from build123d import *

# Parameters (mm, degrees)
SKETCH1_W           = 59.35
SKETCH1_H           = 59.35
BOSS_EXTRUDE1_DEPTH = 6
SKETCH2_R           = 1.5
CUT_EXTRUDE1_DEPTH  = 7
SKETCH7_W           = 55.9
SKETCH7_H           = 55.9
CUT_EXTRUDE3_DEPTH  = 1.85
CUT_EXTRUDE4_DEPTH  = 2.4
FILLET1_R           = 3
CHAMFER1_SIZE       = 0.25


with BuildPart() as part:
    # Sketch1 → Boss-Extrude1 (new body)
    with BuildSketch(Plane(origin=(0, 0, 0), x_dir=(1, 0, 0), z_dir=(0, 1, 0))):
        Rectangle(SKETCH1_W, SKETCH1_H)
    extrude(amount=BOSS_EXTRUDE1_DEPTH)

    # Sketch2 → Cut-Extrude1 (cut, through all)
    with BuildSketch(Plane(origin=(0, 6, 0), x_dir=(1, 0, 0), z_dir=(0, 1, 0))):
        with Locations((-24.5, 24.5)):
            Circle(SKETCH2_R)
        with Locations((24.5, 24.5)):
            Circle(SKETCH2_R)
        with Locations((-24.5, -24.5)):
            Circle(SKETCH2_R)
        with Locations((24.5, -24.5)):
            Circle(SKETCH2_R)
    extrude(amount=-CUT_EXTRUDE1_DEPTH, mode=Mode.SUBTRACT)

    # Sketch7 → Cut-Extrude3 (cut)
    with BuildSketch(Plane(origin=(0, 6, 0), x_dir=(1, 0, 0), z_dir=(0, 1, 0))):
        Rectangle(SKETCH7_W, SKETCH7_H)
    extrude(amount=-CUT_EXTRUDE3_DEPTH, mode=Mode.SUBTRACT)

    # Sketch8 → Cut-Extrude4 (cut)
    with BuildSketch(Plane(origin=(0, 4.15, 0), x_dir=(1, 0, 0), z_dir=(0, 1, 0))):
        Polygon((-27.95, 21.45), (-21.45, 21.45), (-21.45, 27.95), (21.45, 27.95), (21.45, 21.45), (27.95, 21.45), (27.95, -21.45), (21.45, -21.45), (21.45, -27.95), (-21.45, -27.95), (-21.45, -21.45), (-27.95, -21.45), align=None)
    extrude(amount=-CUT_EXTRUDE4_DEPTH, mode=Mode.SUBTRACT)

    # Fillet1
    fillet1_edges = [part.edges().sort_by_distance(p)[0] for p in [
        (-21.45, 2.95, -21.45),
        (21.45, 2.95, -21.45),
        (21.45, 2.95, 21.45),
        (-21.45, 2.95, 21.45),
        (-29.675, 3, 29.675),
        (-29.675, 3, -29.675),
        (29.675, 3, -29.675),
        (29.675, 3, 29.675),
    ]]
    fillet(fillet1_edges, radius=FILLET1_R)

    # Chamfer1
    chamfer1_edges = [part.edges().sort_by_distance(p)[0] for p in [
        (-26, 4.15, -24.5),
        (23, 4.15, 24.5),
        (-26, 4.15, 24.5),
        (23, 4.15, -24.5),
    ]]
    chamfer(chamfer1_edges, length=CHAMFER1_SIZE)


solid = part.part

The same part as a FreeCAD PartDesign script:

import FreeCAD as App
import Part
import Sketcher
Q = App.Units.Quantity


def edges_at(feature, points):
    """Names of the edges that pass closest to the given points."""
    edges = feature.Shape.Edges
    near = lambda p: min(range(len(edges)), key=lambda i: edges[i].distToShape(Part.Vertex(*p))[0])
    return sorted({f"Edge{near(p) + 1}" for p in points})


def add_polygon(sketch, points):
    """Adds a closed chain of lines whose ends are joined by coincident constraints."""
    first, n = sketch.GeometryCount, len(points)
    for a, b in zip(points, points[1:] + points[:1]):
        sketch.addGeometry(Part.LineSegment(App.Vector(*a, 0), App.Vector(*b, 0)), False)
    for i in range(n):
        sketch.addConstraint(Sketcher.Constraint("Coincident", first + i, 2, first + (i + 1) % n, 1))

doc = App.newDocument("Part")
body = doc.addObject("PartDesign::Body", "Body")

# Sketch on XZ plane
sketch1 = body.newObject("Sketcher::SketchObject", "Sketch")
sketch1.AttachmentSupport = (doc.getObject("XZ_Plane"), [""])
sketch1.MapMode = "FlatFace"
add_polygon(sketch1, [(-30, -30), (-30, 30), (30, 30), (30, -30)])  # lines 0-3
sketch1.addConstraint([
    Sketcher.Constraint("Vertical", 0),
    Sketcher.Constraint("Horizontal", 1),
    Sketcher.Constraint("Vertical", 2),
    Sketcher.Constraint("Horizontal", 3),
    Sketcher.Constraint("Symmetric", 0, 2, 2, 2, -1, 1),
    Sketcher.Constraint("Equal", 3, 0),
    Sketcher.Constraint("DistanceX", 1, 1, 1, 2, Q("59.35 mm")),
])
pad1 = body.newObject("PartDesign::Pad", "Pad")
pad1.Profile = sketch1
pad1.Length = 6
pad1.Reversed = True

# Sketch on XZ plane
sketch2 = body.newObject("Sketcher::SketchObject", "Sketch001")
sketch2.AttachmentSupport = (doc.getObject("XZ_Plane"), [""])
sketch2.MapMode = "FlatFace"
sketch2.AttachmentOffset = App.Placement(App.Vector(0, 0, -6), App.Rotation())
sketch2.addGeometry([
    Part.Circle(App.Vector(-24.5, -24.5, 0), App.Vector(0, 0, 1), 1.5),
    Part.Circle(App.Vector(24.5, -24.5, 0), App.Vector(0, 0, 1), 1.5),
    Part.Circle(App.Vector(-24.5, 24.5, 0), App.Vector(0, 0, 1), 1.5),
    Part.Circle(App.Vector(24.5, 24.5, 0), App.Vector(0, 0, 1), 1.5),
], False)
sketch2.addConstraint([
    Sketcher.Constraint("Equal", 0, 1),
    Sketcher.Constraint("Equal", 1, 2),
    Sketcher.Constraint("Equal", 2, 3),
    Sketcher.Constraint("Symmetric", 1, 3, 2, 3, -1, 1),
    Sketcher.Constraint("Symmetric", 0, 3, 3, 3, -1, 1),
    Sketcher.Constraint("Symmetric", 0, 3, 1, 3, -2),
    Sketcher.Constraint("Diameter", 0, Q("3 mm")),
    Sketcher.Constraint("DistanceX", 0, 3, 1, 3, Q("49 mm")),
    Sketcher.Constraint("DistanceY", 0, 3, 2, 3, Q("49 mm")),
])
pocket1 = body.newObject("PartDesign::Pocket", "Pocket")
pocket1.Profile = sketch2
pocket1.Type = "ThroughAll"
pocket1.Reversed = True

# Sketch on XZ plane
sketch3 = body.newObject("Sketcher::SketchObject", "Sketch002")
sketch3.AttachmentSupport = (doc.getObject("XZ_Plane"), [""])
sketch3.MapMode = "FlatFace"
sketch3.AttachmentOffset = App.Placement(App.Vector(0, 0, -6), App.Rotation())
add_polygon(sketch3, [(-28, -28), (-28, 28), (28, 28), (28, -28)])  # lines 0-3
sketch3.addConstraint([
    Sketcher.Constraint("Vertical", 0),
    Sketcher.Constraint("Horizontal", 1),
    Sketcher.Constraint("Vertical", 2),
    Sketcher.Constraint("Horizontal", 3),
    Sketcher.Constraint("Symmetric", 0, 2, 2, 2, -1, 1),
    Sketcher.Constraint("Equal", 3, 0),
    Sketcher.Constraint("DistanceX", 1, 1, 1, 2, Q("55.9 mm")),
])
pocket2 = body.newObject("PartDesign::Pocket", "Pocket001")
pocket2.Profile = sketch3
pocket2.Length = 1.85
pocket2.Reversed = True

# Sketch on XZ plane
sketch4 = body.newObject("Sketcher::SketchObject", "Sketch003")
sketch4.AttachmentSupport = (doc.getObject("XZ_Plane"), [""])
sketch4.MapMode = "FlatFace"
sketch4.AttachmentOffset = App.Placement(App.Vector(0, 0, -4.15), App.Rotation())
add_polygon(sketch4, [(-21, -21), (-28, -21), (-28, 21), (-21, 21), (-21, 28), (21, 28), (21, 21), (28, 21), (28, -21), (21, -21), (21, -28), (-21, -28)])  # lines 0-11
sketch4.addConstraint([
    Sketcher.Constraint("Horizontal", 0),
    Sketcher.Constraint("Vertical", 1),
    Sketcher.Constraint("Horizontal", 2),
    Sketcher.Constraint("Vertical", 3),
    Sketcher.Constraint("Horizontal", 4),
    Sketcher.Constraint("Vertical", 5),
    Sketcher.Constraint("Horizontal", 6),
    Sketcher.Constraint("Vertical", 7),
    Sketcher.Constraint("Horizontal", 8),
    Sketcher.Constraint("Vertical", 9),
    Sketcher.Constraint("Horizontal", 10),
    Sketcher.Constraint("Vertical", 11),
    Sketcher.Constraint("Symmetric", 0, 2, 6, 2, -1, 1),
    Sketcher.Constraint("Symmetric", 2, 2, 8, 2, -1, 1),
    Sketcher.Constraint("Symmetric", 4, 2, 10, 2, -1, 1),
    Sketcher.Constraint("Symmetric", 2, 2, 5, 2, -2),
    Sketcher.Constraint("Equal", 10, 1),
    Sketcher.Constraint("Equal", 8, 3),
    Sketcher.Constraint("DistanceX", 0, 2, 0, 1, Q("6.5 mm")),
    Sketcher.Constraint("DistanceX", 4, 1, 4, 2, Q("42.9 mm")),
])
pocket3 = body.newObject("PartDesign::Pocket", "Pocket002")
pocket3.Profile = sketch4
pocket3.Length = 2.4
pocket3.Reversed = True
doc.recompute()

fillet = body.newObject("PartDesign::Fillet", "Fillet")
fillet.Base = (pocket3, edges_at(pocket3, [
    (-21.45, 2.95, -21.45),
    (21.45, 2.95, -21.45),
    (21.45, 2.95, 21.45),
    (-21.45, 2.95, 21.45),
    (-29.675, 3, 29.675),
    (-29.675, 3, -29.675),
    (29.675, 3, -29.675),
    (29.675, 3, 29.675),
]))
fillet.Radius = 3
doc.recompute()

chamfer = body.newObject("PartDesign::Chamfer", "Chamfer")
chamfer.Base = (fillet, edges_at(fillet, [
    (-26, 4.15, -24.5),
    (23, 4.15, 24.5),
    (-26, 4.15, 24.5),
    (23, 4.15, -24.5),
]))
chamfer.Size = 0.25

doc.recompute()
